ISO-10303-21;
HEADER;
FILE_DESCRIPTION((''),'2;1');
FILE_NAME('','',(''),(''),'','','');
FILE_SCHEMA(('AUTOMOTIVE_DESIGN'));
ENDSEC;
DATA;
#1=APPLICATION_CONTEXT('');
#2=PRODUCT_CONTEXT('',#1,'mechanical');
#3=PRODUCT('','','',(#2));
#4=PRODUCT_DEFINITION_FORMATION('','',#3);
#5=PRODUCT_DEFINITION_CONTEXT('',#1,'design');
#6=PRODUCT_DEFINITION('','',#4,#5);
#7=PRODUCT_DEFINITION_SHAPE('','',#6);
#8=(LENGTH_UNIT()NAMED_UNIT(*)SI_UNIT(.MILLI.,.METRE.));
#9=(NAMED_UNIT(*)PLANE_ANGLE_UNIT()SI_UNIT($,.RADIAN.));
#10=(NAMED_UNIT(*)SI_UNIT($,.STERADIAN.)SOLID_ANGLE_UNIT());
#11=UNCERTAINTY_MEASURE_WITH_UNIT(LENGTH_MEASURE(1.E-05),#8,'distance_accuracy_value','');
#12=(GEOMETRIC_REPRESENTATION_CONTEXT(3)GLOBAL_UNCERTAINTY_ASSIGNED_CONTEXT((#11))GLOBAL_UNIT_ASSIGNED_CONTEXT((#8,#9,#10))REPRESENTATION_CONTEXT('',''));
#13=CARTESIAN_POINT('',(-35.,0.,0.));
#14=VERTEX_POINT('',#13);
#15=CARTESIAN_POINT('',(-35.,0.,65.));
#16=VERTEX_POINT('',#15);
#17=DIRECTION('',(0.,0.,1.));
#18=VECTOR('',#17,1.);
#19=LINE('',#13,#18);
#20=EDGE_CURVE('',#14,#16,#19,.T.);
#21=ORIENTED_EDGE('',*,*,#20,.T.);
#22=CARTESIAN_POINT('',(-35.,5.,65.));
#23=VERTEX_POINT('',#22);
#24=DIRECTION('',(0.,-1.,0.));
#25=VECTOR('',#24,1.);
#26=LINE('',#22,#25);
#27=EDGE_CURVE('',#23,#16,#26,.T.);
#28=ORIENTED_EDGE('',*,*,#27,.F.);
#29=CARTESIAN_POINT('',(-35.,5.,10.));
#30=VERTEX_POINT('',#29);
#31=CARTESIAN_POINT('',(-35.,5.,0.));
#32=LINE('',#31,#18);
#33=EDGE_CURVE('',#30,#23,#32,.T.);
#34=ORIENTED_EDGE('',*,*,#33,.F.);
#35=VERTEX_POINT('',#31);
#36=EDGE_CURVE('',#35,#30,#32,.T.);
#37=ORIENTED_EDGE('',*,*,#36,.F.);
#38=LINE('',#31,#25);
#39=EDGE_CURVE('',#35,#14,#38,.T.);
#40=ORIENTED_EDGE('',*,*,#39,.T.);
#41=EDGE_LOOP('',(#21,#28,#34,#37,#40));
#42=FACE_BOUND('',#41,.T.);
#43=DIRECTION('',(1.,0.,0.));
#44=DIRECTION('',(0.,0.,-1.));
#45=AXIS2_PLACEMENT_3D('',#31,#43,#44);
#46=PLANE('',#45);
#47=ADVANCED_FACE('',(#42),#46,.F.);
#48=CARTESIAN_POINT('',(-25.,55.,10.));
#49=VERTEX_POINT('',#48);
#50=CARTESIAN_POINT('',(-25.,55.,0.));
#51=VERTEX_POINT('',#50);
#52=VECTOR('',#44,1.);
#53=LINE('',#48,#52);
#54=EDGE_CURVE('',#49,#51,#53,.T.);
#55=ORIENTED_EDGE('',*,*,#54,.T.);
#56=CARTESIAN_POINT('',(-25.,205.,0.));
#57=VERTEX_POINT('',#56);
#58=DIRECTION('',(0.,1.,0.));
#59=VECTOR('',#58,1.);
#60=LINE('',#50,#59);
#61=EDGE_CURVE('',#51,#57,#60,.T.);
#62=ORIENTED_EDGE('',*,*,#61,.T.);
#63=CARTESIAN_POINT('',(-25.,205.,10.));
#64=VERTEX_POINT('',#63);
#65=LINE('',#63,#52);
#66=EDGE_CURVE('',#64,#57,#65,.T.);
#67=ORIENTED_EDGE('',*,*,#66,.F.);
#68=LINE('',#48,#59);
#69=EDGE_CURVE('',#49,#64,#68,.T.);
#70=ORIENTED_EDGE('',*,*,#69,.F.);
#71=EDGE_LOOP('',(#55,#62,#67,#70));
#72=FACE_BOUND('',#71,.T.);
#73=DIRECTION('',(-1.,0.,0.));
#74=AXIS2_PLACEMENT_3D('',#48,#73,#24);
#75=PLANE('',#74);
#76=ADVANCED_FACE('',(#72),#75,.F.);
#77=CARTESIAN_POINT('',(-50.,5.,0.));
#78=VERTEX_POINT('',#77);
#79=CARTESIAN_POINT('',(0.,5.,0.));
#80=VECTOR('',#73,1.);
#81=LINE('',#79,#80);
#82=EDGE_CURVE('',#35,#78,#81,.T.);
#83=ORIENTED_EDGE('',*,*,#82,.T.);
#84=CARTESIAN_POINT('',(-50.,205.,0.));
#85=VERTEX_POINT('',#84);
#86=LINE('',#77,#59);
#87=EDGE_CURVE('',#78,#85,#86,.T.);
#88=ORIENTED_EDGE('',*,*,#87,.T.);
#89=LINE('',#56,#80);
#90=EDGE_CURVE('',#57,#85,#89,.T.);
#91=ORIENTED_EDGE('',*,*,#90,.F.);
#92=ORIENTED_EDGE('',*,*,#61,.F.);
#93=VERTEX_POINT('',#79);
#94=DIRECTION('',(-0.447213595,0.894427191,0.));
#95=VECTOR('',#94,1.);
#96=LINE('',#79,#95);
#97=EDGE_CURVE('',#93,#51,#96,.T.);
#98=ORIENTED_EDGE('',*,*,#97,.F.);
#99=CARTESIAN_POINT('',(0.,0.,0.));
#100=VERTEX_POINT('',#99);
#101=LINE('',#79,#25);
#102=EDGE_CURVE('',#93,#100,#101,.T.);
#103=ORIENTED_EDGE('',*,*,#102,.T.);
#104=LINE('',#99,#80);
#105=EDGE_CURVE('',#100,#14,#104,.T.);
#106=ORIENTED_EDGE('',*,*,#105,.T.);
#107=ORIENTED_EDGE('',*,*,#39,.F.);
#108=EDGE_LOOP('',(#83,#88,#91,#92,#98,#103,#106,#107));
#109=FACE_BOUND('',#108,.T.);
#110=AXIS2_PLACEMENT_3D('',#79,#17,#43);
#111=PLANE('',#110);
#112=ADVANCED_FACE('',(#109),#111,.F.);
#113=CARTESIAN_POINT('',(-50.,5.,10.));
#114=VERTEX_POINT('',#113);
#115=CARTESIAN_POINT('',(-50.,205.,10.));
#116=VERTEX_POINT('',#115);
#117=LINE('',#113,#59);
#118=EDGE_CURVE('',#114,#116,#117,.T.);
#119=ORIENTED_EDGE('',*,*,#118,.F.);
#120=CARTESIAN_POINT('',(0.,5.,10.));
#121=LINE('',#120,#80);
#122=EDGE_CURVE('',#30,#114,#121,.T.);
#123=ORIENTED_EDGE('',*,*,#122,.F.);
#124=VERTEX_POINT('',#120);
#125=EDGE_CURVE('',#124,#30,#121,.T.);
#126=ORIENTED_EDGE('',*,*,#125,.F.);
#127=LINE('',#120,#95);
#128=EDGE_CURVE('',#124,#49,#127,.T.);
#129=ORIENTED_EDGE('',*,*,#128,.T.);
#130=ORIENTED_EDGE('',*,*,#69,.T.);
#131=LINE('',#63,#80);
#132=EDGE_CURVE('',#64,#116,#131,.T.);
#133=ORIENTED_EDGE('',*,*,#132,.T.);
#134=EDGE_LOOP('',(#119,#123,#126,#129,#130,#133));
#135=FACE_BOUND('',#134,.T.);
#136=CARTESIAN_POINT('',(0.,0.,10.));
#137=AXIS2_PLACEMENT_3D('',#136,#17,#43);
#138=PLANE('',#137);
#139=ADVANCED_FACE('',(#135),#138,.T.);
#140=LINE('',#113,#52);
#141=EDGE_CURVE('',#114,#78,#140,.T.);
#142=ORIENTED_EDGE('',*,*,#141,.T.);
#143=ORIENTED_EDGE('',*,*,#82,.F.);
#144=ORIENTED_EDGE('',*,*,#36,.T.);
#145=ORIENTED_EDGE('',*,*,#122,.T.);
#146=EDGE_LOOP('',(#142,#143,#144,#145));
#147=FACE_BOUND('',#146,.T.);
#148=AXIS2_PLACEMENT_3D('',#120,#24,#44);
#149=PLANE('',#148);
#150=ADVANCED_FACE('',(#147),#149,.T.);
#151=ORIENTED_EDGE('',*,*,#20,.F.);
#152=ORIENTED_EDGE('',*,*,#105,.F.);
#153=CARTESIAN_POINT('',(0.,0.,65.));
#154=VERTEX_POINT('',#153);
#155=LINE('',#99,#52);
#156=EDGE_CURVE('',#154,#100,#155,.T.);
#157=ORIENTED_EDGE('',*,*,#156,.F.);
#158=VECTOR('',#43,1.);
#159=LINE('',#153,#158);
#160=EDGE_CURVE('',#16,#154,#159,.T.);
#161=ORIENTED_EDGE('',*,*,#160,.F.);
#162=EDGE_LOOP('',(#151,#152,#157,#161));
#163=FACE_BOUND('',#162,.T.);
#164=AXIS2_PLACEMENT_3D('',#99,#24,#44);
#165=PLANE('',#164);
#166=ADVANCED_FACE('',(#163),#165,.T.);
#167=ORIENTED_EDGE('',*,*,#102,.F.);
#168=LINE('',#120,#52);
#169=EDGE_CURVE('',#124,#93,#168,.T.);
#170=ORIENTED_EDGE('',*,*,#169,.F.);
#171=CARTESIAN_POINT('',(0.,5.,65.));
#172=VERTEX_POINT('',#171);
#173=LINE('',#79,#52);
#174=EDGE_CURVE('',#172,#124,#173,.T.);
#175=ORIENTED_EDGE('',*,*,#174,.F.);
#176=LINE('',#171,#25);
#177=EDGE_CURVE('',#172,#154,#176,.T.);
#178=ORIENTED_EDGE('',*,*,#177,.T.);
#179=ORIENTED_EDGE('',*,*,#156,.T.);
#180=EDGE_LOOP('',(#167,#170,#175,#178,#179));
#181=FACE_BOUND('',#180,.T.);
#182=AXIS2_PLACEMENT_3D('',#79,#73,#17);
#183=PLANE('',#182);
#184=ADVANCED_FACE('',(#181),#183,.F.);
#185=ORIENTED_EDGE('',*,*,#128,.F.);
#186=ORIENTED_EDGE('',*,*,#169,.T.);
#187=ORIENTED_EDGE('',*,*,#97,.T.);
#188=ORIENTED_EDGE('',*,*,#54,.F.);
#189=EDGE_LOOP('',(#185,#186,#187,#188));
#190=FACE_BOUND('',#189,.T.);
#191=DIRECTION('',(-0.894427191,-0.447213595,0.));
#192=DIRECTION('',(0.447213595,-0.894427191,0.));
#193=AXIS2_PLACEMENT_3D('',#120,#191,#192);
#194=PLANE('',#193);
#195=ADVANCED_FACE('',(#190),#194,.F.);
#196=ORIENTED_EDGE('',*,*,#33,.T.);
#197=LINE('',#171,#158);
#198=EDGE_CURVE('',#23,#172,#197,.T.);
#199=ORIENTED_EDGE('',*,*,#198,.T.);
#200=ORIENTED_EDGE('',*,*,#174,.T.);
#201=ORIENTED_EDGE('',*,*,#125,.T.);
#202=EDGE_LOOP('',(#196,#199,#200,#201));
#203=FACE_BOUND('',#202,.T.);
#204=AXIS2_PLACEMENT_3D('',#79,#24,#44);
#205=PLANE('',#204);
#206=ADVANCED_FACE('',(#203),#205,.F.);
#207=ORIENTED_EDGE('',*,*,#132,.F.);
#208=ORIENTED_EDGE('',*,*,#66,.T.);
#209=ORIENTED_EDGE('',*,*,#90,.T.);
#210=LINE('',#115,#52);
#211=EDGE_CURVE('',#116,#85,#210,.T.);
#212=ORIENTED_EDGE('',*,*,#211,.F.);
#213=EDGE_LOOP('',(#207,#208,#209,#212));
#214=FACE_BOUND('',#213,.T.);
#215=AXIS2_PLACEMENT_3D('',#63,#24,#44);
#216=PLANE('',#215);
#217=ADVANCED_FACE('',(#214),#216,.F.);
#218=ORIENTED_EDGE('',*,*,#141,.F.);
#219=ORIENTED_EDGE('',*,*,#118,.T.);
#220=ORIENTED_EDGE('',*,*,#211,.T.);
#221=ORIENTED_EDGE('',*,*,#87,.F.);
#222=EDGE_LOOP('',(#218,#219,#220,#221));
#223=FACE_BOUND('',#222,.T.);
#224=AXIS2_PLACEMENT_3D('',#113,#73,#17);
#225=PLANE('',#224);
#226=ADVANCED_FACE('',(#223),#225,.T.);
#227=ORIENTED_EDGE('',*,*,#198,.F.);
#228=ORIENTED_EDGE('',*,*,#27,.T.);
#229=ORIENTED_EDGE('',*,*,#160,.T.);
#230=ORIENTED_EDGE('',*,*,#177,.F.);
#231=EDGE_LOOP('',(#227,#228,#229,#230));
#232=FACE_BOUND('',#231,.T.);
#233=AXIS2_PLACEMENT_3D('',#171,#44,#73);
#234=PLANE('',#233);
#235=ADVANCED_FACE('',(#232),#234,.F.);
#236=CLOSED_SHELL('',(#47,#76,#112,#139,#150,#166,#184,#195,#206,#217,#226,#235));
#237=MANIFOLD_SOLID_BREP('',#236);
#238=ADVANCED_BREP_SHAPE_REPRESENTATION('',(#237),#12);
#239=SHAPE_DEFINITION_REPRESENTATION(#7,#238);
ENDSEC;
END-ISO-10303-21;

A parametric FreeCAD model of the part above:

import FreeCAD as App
import Part
import Sketcher
from FreeCAD import Vector
Q = App.Units.Quantity

doc = App.newDocument("Part")
body = doc.addObject("PartDesign::Body", "Body")

# Sketch on XZ plane
sketch1 = body.newObject("Sketcher::SketchObject", "Sketch")
sketch1.AttachmentSupport = (doc.getObject("XZ_Plane"), [""])
sketch1.MapMode = "FlatFace"
sketch1.addGeometry(Part.LineSegment(Vector(-35, 0, 0), Vector(-35, 65, 0)), False)
sketch1.addGeometry(Part.LineSegment(Vector(-35, 65, 0), Vector(0, 65, 0)), False)
sketch1.addGeometry(Part.LineSegment(Vector(0, 65, 0), Vector(0, 0, 0)), False)
sketch1.addGeometry(Part.LineSegment(Vector(0, 0, 0), Vector(-35, 0, 0)), False)
sketch1.addConstraint(Sketcher.Constraint("Coincident", 0, 2, 1, 1))
sketch1.addConstraint(Sketcher.Constraint("Coincident", 1, 2, 2, 1))
sketch1.addConstraint(Sketcher.Constraint("Coincident", 2, 2, 3, 1))
sketch1.addConstraint(Sketcher.Constraint("Coincident", 3, 2, 0, 1))
sketch1.addConstraint(Sketcher.Constraint("Vertical", 0))
sketch1.addConstraint(Sketcher.Constraint("Horizontal", 1))
sketch1.addConstraint(Sketcher.Constraint("Vertical", 2))
sketch1.addConstraint(Sketcher.Constraint("Horizontal", 3))
sketch1.addConstraint(Sketcher.Constraint("Coincident", 2, 2, -1, 1))
sketch1.addConstraint(Sketcher.Constraint("DistanceX", 1, 1, 1, 2, Q("35 mm")))
sketch1.addConstraint(Sketcher.Constraint("DistanceY", 0, 1, 0, 2, Q("65 mm")))
pad1 = body.newObject("PartDesign::Pad", "Pad")
pad1.Profile = sketch1
pad1.Length = 5
pad1.Reversed = True

# Sketch on XY plane
sketch2 = body.newObject("Sketcher::SketchObject", "Sketch001")
sketch2.AttachmentSupport = (doc.getObject("XY_Plane"), [""])
sketch2.MapMode = "FlatFace"
sketch2.addGeometry(Part.LineSegment(Vector(0, 5, 0), Vector(-25, 55, 0)), False)
sketch2.addGeometry(Part.LineSegment(Vector(-25, 55, 0), Vector(-25, 205, 0)), False)
sketch2.addGeometry(Part.LineSegment(Vector(-25, 205, 0), Vector(-50, 205, 0)), False)
sketch2.addGeometry(Part.LineSegment(Vector(-50, 205, 0), Vector(-50, 5, 0)), False)
sketch2.addGeometry(Part.LineSegment(Vector(-50, 5, 0), Vector(0, 5, 0)), False)
sketch2.addConstraint(Sketcher.Constraint("Coincident", 0, 2, 1, 1))
sketch2.addConstraint(Sketcher.Constraint("Coincident", 1, 2, 2, 1))
sketch2.addConstraint(Sketcher.Constraint("Coincident", 2, 2, 3, 1))
sketch2.addConstraint(Sketcher.Constraint("Coincident", 3, 2, 4, 1))
sketch2.addConstraint(Sketcher.Constraint("Coincident", 4, 2, 0, 1))
sketch2.addConstraint(Sketcher.Constraint("Vertical", 1))
sketch2.addConstraint(Sketcher.Constraint("Horizontal", 2))
sketch2.addConstraint(Sketcher.Constraint("Vertical", 3))
sketch2.addConstraint(Sketcher.Constraint("Horizontal", 4))
sketch2.addConstraint(Sketcher.Constraint("PointOnObject", 4, 2, -2))
sketch2.addConstraint(Sketcher.Constraint("DistanceX", 2, 2, 2, 1, Q("25 mm")))
sketch2.addConstraint(Sketcher.Constraint("DistanceX", 4, 1, 4, 2, Q("50 mm")))
sketch2.addConstraint(Sketcher.Constraint("DistanceY", 1, 1, 1, 2, Q("150 mm")))
sketch2.addConstraint(Sketcher.Constraint("DistanceY", 3, 2, 3, 1, Q("200 mm")))
sketch2.addConstraint(Sketcher.Constraint("DistanceY", -1, 1, 0, 2, Q("55 mm")))
pad2 = body.newObject("PartDesign::Pad", "Pad001")
pad2.Profile = sketch2
pad2.Length = 10

doc.recompute()
